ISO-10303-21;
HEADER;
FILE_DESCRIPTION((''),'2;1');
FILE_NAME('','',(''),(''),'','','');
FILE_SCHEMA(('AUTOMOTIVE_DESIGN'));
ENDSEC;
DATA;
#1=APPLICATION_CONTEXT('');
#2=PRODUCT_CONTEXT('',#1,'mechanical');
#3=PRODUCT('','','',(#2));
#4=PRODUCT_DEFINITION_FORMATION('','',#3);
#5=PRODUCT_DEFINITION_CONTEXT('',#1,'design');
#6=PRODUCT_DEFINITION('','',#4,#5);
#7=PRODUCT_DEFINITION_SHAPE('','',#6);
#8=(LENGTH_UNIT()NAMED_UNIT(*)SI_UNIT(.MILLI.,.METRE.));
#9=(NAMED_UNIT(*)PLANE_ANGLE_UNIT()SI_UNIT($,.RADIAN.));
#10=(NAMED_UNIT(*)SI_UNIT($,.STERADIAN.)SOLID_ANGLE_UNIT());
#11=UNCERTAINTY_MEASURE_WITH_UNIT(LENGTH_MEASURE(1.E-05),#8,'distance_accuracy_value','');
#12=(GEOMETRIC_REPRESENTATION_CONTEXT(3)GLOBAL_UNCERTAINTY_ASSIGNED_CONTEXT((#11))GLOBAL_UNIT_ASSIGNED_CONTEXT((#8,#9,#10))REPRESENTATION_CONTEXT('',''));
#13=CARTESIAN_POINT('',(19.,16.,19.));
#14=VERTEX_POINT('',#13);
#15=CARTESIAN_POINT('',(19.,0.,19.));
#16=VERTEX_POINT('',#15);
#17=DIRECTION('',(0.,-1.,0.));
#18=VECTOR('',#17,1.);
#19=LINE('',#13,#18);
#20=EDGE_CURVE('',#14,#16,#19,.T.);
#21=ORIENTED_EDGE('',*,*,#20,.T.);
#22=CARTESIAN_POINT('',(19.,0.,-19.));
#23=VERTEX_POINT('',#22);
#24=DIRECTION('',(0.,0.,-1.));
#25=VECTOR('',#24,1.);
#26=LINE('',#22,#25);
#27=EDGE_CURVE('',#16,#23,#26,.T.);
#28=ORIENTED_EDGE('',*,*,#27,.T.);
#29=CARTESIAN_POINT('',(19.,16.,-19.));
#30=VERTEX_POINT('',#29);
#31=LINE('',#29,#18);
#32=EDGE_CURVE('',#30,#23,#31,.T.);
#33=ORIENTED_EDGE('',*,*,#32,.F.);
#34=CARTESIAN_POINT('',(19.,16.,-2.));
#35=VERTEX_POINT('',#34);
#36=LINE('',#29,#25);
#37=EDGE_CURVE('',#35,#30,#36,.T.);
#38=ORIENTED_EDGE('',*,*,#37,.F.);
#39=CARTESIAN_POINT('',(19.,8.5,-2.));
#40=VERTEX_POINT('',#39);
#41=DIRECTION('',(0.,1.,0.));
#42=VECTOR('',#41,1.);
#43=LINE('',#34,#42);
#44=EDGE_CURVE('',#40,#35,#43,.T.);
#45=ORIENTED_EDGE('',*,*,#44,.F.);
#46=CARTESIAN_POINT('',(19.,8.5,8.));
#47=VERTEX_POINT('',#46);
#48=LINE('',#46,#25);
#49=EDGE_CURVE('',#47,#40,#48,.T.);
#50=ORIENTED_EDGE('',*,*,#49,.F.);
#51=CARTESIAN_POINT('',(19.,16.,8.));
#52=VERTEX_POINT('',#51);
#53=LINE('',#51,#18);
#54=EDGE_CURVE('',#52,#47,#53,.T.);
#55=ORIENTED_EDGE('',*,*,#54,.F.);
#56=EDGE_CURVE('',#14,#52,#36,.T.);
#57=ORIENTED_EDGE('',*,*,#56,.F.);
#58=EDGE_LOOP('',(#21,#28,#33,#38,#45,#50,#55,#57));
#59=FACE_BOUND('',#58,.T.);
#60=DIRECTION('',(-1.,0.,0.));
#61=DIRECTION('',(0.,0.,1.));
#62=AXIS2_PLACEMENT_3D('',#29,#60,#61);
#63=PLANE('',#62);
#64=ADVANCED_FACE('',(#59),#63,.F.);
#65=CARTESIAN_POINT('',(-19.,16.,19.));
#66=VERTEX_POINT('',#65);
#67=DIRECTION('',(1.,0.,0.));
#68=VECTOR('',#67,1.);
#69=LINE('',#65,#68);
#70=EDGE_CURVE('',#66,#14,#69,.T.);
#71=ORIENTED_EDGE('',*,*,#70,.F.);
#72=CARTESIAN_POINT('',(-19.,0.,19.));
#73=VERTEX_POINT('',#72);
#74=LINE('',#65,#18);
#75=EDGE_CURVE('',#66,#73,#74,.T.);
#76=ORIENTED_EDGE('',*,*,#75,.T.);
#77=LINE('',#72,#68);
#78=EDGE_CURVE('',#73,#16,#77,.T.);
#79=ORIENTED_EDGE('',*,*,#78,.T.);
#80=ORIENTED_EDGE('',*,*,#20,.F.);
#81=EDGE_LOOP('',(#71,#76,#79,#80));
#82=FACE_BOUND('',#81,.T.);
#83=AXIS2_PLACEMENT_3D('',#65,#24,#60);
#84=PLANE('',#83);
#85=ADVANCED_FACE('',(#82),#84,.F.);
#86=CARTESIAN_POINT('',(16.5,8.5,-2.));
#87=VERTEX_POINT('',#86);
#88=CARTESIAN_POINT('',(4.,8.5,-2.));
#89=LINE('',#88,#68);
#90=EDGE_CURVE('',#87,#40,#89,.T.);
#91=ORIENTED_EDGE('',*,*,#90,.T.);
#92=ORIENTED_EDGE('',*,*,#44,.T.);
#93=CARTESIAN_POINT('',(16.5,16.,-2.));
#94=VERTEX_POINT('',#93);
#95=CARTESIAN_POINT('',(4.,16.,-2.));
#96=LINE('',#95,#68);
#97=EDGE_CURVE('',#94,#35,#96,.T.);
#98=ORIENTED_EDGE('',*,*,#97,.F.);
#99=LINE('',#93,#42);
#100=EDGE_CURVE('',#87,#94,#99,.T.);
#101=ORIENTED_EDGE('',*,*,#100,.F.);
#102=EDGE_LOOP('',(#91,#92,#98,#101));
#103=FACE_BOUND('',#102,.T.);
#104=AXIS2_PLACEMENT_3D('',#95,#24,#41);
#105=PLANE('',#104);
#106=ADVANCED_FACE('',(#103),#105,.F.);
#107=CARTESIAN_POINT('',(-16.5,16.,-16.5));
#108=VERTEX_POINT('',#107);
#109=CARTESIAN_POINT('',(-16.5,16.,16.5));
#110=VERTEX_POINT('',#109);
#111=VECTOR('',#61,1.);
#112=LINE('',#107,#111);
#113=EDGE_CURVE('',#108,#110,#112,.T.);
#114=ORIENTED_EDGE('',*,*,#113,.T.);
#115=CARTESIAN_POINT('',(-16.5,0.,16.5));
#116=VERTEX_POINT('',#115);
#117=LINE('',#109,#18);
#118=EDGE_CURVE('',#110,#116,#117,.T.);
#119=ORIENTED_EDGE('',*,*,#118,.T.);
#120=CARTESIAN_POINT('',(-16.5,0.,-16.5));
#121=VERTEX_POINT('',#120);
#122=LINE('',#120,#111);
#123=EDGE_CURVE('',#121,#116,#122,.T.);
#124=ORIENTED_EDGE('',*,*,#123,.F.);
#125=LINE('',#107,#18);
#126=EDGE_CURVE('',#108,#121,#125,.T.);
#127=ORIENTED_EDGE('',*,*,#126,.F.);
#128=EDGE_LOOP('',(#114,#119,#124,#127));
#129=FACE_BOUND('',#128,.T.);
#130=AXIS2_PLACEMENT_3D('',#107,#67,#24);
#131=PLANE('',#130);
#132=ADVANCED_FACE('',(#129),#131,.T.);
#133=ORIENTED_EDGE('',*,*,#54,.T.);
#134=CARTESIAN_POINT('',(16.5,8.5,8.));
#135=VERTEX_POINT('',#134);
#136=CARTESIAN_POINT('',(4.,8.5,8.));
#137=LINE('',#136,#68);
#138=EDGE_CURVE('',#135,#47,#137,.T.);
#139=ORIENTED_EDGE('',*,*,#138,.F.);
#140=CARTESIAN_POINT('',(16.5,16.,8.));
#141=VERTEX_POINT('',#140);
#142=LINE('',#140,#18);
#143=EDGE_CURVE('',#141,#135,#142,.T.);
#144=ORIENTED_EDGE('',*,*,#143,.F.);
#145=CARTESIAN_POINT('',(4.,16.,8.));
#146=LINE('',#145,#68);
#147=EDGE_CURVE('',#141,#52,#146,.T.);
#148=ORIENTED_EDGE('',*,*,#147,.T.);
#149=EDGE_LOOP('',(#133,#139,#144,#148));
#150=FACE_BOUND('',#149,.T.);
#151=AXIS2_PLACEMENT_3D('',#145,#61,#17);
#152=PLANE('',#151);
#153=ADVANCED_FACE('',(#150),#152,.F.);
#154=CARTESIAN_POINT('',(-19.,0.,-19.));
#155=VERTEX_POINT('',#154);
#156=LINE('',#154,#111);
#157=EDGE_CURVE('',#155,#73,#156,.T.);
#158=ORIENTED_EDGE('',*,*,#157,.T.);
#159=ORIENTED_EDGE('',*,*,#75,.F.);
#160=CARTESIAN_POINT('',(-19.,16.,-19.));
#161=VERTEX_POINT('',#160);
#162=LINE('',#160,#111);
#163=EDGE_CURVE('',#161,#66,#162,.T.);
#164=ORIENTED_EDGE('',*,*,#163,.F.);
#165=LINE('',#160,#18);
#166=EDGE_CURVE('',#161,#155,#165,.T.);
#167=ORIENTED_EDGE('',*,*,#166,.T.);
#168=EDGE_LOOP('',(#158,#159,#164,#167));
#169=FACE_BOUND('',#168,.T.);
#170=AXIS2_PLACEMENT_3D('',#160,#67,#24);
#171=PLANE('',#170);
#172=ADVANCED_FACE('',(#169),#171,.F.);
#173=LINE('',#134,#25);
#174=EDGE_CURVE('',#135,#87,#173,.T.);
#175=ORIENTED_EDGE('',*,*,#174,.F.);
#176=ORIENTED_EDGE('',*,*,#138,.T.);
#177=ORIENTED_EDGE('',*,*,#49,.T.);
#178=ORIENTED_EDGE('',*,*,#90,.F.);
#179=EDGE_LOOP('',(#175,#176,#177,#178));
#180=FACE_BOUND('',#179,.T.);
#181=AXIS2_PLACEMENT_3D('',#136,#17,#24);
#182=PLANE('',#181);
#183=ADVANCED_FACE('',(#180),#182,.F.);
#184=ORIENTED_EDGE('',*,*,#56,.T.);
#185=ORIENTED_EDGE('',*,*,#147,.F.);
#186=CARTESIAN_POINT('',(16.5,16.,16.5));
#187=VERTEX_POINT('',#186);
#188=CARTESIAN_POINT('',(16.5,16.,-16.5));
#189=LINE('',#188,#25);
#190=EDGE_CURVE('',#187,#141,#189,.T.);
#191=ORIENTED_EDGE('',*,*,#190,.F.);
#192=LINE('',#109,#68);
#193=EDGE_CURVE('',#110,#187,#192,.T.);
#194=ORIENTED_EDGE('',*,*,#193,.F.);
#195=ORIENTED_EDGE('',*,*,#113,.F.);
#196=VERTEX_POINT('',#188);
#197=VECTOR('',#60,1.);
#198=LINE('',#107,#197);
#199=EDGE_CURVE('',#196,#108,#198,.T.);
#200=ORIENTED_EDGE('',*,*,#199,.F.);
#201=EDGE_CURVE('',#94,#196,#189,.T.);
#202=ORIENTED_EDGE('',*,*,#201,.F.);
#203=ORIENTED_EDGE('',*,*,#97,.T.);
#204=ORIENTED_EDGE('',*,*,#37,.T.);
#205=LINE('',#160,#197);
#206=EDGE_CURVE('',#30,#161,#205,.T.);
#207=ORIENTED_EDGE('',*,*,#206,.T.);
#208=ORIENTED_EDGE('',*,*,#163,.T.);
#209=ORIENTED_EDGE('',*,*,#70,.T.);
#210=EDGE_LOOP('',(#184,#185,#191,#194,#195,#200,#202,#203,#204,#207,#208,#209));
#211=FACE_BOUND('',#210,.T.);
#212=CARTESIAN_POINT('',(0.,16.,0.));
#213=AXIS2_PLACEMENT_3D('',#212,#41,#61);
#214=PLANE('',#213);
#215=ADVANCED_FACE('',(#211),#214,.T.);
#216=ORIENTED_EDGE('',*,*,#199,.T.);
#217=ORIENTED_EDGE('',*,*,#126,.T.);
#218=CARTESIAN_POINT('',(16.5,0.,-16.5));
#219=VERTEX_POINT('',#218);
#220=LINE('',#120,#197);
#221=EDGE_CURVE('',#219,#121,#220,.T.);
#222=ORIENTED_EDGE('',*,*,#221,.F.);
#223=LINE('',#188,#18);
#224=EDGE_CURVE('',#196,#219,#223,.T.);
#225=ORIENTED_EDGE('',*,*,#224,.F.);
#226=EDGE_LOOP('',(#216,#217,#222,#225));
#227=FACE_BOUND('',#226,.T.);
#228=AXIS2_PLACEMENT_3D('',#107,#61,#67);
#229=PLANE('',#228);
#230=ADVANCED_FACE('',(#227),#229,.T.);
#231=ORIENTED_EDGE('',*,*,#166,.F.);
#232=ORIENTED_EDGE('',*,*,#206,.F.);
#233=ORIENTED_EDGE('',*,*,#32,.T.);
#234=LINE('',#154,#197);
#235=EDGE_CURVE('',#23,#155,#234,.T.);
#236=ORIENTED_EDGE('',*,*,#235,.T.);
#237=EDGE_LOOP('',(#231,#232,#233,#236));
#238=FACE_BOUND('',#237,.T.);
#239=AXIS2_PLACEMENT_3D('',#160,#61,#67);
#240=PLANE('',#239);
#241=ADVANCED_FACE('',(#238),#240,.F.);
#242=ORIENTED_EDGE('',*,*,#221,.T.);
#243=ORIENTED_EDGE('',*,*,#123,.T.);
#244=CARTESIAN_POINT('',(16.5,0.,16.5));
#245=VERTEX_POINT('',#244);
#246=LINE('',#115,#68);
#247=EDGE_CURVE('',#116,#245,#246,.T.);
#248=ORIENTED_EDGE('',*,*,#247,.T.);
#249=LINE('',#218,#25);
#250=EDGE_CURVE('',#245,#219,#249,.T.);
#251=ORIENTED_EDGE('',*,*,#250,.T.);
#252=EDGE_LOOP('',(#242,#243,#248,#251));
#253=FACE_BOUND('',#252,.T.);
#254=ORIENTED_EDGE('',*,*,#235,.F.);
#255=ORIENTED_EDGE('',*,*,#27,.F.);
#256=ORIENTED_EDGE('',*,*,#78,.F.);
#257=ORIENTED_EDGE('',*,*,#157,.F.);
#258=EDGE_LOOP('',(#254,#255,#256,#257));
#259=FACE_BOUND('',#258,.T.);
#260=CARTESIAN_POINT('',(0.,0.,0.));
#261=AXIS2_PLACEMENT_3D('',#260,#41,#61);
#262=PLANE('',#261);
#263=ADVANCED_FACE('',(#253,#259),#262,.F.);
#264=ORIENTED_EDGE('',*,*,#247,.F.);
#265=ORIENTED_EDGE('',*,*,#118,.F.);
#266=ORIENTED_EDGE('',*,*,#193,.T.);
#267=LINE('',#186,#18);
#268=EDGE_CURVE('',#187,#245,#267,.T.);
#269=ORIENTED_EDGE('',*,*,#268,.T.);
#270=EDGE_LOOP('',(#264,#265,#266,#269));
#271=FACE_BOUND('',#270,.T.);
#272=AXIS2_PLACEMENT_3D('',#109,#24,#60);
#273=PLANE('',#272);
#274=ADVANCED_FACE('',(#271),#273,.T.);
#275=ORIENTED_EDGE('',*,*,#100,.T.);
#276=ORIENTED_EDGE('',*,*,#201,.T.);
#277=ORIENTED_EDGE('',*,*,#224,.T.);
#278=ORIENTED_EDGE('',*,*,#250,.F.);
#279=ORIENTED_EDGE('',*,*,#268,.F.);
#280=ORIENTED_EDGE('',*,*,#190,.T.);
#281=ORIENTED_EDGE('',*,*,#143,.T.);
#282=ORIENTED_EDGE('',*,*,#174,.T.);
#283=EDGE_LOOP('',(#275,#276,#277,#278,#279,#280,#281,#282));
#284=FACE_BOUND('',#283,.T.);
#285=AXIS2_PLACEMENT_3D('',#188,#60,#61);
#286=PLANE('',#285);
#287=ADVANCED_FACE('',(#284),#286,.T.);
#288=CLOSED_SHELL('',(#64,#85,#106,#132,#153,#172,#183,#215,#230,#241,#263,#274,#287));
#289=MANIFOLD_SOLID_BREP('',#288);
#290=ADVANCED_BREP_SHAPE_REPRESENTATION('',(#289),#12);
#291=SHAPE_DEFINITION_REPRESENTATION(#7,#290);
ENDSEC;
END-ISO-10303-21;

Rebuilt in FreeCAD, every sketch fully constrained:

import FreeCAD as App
import Part
import Sketcher
Q = App.Units.Quantity

doc = App.newDocument("Part")
body = doc.addObject("PartDesign::Body", "Body")

sketch1 = doc.addObject("Sketcher::SketchObject", "Sketch")
body.addObject(sketch1)
sketch1.AttachmentSupport = (doc.XZ_Plane, [""])
sketch1.MapMode = "FlatFace"
sketch1.addGeometry(Part.LineSegment(App.Vector(-19, -19, 0), App.Vector(-19, 19, 0)), False)
sketch1.addGeometry(Part.LineSegment(App.Vector(-19, 19, 0), App.Vector(19, 19, 0)), False)
sketch1.addGeometry(Part.LineSegment(App.Vector(19, 19, 0), App.Vector(19, -19, 0)), False)
sketch1.addGeometry(Part.LineSegment(App.Vector(19, -19, 0), App.Vector(-19, -19, 0)), False)
sketch1.addGeometry(Part.LineSegment(App.Vector(16, 16, 0), App.Vector(-16, 16, 0)), False)
sketch1.addGeometry(Part.LineSegment(App.Vector(-16, 16, 0), App.Vector(-16, -16, 0)), False)
sketch1.addGeometry(Part.LineSegment(App.Vector(-16, -16, 0), App.Vector(16, -16, 0)), False)
sketch1.addGeometry(Part.LineSegment(App.Vector(16, -16, 0), App.Vector(16, 16, 0)), False)
sketch1.addConstraint(Sketcher.Constraint("Coincident", 0, 2, 1, 1))
sketch1.addConstraint(Sketcher.Constraint("Coincident", 1, 2, 2, 1))
sketch1.addConstraint(Sketcher.Constraint("Coincident", 2, 2, 3, 1))
sketch1.addConstraint(Sketcher.Constraint("Coincident", 3, 2, 0, 1))
sketch1.addConstraint(Sketcher.Constraint("Coincident", 4, 2, 5, 1))
sketch1.addConstraint(Sketcher.Constraint("Coincident", 5, 2, 6, 1))
sketch1.addConstraint(Sketcher.Constraint("Coincident", 6, 2, 7, 1))
sketch1.addConstraint(Sketcher.Constraint("Coincident", 7, 2, 4, 1))
sketch1.addConstraint(Sketcher.Constraint("Vertical", 0))
sketch1.addConstraint(Sketcher.Constraint("Horizontal", 1))
sketch1.addConstraint(Sketcher.Constraint("Vertical", 2))
sketch1.addConstraint(Sketcher.Constraint("Horizontal", 3))
sketch1.addConstraint(Sketcher.Constraint("Horizontal", 4))
sketch1.addConstraint(Sketcher.Constraint("Vertical", 5))
sketch1.addConstraint(Sketcher.Constraint("Horizontal", 6))
sketch1.addConstraint(Sketcher.Constraint("Vertical", 7))
sketch1.addConstraint(Sketcher.Constraint("Symmetric", 0, 2, 2, 2, -1, 1))
sketch1.addConstraint(Sketcher.Constraint("Symmetric", 4, 2, 6, 2, -1, 1))
sketch1.addConstraint(Sketcher.Constraint("Equal", 3, 0))
sketch1.addConstraint(Sketcher.Constraint("Equal", 6, 5))
sketch1.addConstraint(Sketcher.Constraint("DistanceX", 1, 1, 1, 2, Q("38 mm")))
sketch1.addConstraint(Sketcher.Constraint("DistanceX", 4, 2, 4, 1, Q("33 mm")))
pad1 = doc.addObject("PartDesign::Pad", "Pad")
body.addObject(pad1)
pad1.Profile = sketch1
pad1.Length = 16
pad1.Reversed = True

sketch2 = doc.addObject("Sketcher::SketchObject", "Sketch001")
body.addObject(sketch2)
sketch2.AttachmentSupport = (doc.YZ_Plane, [""])
sketch2.MapMode = "FlatFace"
sketch2.AttachmentOffset = App.Placement(App.Vector(0, 0, 19), App.Rotation())
sketch2.addGeometry(Part.LineSegment(App.Vector(16, 8, 0), App.Vector(8, 8, 0)), False)
sketch2.addGeometry(Part.LineSegment(App.Vector(8, 8, 0), App.Vector(8, -2, 0)), False)
sketch2.addGeometry(Part.LineSegment(App.Vector(8, -2, 0), App.Vector(16, -2, 0)), False)
sketch2.addGeometry(Part.LineSegment(App.Vector(16, -2, 0), App.Vector(16, 8, 0)), False)
sketch2.addConstraint(Sketcher.Constraint("Coincident", 0, 2, 1, 1))
sketch2.addConstraint(Sketcher.Constraint("Coincident", 1, 2, 2, 1))
sketch2.addConstraint(Sketcher.Constraint("Coincident", 2, 2, 3, 1))
sketch2.addConstraint(Sketcher.Constraint("Coincident", 3, 2, 0, 1))
sketch2.addConstraint(Sketcher.Constraint("Horizontal", 0))
sketch2.addConstraint(Sketcher.Constraint("Vertical", 1))
sketch2.addConstraint(Sketcher.Constraint("Horizontal", 2))
sketch2.addConstraint(Sketcher.Constraint("Vertical", 3))
sketch2.addConstraint(Sketcher.Constraint("DistanceY", 1, 2, 1, 1, Q("10 mm")))
sketch2.addConstraint(Sketcher.Constraint("DistanceX", 0, 2, 0, 1, Q("7.5 mm")))
sketch2.addConstraint(Sketcher.Constraint("DistanceY", -1, 1, 0, 2, Q("8 mm")))
sketch2.addConstraint(Sketcher.Constraint("DistanceX", -1, 1, 2, 2, Q("16 mm")))
pocket1 = doc.addObject("PartDesign::Pocket", "Pocket")
body.addObject(pocket1)
pocket1.Profile = sketch2
pocket1.Length = 2.5

doc.recompute()
